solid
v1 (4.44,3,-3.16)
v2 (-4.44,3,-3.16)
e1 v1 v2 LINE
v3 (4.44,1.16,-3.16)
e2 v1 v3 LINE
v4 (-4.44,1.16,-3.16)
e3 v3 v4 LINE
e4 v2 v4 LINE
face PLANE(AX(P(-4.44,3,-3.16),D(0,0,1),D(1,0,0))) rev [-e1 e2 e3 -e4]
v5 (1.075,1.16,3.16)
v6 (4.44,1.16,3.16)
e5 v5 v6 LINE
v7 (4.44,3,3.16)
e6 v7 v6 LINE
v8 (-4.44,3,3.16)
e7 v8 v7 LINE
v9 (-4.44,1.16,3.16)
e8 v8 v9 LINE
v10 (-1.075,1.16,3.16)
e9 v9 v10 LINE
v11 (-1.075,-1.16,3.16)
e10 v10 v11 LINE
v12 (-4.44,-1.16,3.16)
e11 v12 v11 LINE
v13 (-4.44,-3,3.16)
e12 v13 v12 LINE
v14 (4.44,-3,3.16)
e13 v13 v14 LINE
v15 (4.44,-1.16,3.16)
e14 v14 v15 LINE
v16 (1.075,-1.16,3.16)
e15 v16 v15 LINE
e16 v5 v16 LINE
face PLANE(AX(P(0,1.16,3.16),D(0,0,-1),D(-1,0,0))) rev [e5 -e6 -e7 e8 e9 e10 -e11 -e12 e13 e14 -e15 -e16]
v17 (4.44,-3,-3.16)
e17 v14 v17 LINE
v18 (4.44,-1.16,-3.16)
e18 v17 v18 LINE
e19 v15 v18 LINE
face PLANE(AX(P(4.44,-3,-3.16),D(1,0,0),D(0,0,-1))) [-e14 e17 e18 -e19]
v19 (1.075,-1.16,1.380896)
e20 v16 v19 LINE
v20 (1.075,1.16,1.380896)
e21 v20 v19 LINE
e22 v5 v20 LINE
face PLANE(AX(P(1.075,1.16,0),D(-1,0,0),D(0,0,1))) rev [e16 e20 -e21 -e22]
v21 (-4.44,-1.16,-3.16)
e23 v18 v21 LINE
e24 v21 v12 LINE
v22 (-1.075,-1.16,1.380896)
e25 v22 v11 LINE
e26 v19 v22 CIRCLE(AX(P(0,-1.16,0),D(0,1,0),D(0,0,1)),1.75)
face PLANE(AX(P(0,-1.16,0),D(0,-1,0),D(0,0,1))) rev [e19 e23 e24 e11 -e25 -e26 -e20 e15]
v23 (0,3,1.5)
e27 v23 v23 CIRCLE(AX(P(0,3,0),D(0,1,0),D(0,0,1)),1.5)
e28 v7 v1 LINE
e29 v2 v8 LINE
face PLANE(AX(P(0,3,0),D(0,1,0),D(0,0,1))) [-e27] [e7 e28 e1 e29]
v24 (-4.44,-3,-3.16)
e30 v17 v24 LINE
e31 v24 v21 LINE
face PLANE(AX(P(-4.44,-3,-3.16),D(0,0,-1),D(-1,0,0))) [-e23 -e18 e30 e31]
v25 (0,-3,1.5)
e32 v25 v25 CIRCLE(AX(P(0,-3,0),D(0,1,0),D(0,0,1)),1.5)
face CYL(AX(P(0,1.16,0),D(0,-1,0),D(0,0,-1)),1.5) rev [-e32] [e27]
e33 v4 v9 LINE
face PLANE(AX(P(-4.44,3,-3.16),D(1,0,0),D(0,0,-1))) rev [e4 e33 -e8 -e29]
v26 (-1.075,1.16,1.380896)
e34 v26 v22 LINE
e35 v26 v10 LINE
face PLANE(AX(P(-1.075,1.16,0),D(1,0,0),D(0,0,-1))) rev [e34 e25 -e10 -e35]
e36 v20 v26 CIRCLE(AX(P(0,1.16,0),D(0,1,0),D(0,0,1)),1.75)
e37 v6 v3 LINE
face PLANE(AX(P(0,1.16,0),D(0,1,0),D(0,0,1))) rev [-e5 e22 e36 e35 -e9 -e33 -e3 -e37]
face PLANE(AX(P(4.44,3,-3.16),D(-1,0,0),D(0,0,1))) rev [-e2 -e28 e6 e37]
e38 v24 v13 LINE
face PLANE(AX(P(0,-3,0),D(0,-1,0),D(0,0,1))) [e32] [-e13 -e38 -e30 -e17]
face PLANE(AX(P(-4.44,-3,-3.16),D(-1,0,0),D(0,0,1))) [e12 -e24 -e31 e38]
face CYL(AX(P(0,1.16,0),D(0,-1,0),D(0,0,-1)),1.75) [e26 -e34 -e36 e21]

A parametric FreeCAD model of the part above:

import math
import FreeCAD as App
import Part
import Sketcher

doc = App.newDocument("Part")
body = doc.addObject("PartDesign::Body", "Body")

# Sketch on XZ plane
sketch1 = body.newObject("Sketcher::SketchObject", "Sketch")
sketch1.AttachmentSupport = (doc.getObject("XZ_Plane"), [""])
sketch1.MapMode = "FlatFace"
sketch1.addGeometry([
    Part.ArcOfCircle(Part.Circle(App.Vector(0, 0, 0), App.Vector(0, 0, 1), 1.75), math.radians(-90.000015), math.radians(0.000015)),  # 0
    Part.ArcOfCircle(Part.Circle(App.Vector(-0.000001, 0, 0), App.Vector(0, 0, 1), 1.75), math.radians(127.900026), math.radians(270.000016)),  # 1
    Part.LineSegment(App.Vector(-1.075, 1.380896, 0), App.Vector(-1.075, 3.16, 0)),  # 2
    Part.LineSegment(App.Vector(-1.075, 3.16, 0), App.Vector(1.075, 3.16, 0)),  # 3
    Part.LineSegment(App.Vector(1.075, 3.16, 0), App.Vector(1.075, 1.380896, 0)),  # 4
    Part.ArcOfCircle(Part.Circle(App.Vector(0.000002, 0.000001, 0), App.Vector(0, 0, 1), 1.749998), math.radians(-0.000024), math.radians(52.100001)),  # 5
    Part.ArcOfCircle(Part.Circle(App.Vector(-0.000001, 0.000001, 0), App.Vector(0, 0, 1), 1.500001), math.radians(-89.999978), math.radians(-0.000022)),  # 6
    Part.ArcOfCircle(Part.Circle(App.Vector(-0.000001, -0.000001, 0), App.Vector(0, 0, 1), 1.500001), math.radians(0.000022), math.radians(89.999978)),  # 7
    Part.ArcOfCircle(Part.Circle(App.Vector(0, 0, 0), App.Vector(0, 0, 1), 1.5), math.radians(90), math.radians(270)),  # 8
], False)
sketch1.addConstraint([
    Sketcher.Constraint("Tangent", 0, 1, 1, 2),
    Sketcher.Constraint("Coincident", 1, 1, 2, 1),
    Sketcher.Constraint("Coincident", 2, 2, 3, 1),
    Sketcher.Constraint("Coincident", 3, 2, 4, 1),
    Sketcher.Constraint("Coincident", 4, 2, 5, 2),
    Sketcher.Constraint("Tangent", 5, 1, 0, 2),
    Sketcher.Constraint("Tangent", 6, 2, 7, 1),
    Sketcher.Constraint("Tangent", 7, 2, 8, 1),
    Sketcher.Constraint("Tangent", 8, 2, 6, 1),
    Sketcher.Constraint("Vertical", 2),
    Sketcher.Constraint("Horizontal", 3),
    Sketcher.Constraint("Vertical", 4),
    Sketcher.Constraint("Coincident", 0, 3, -1, 1),
    Sketcher.Constraint("Coincident", 6, 3, -1, 1),
    Sketcher.Constraint("Equal", 0, 1),
    Sketcher.Constraint("Equal", 0, 5),
    Sketcher.Constraint("PointOnObject", 0, 1, -2),
    Sketcher.Constraint("PointOnObject", 5, 1, -1),
    Sketcher.Constraint("PointOnObject", 6, 2, -1),
    Sketcher.Constraint("PointOnObject", 7, 2, -2),
    Sketcher.Constraint("PointOnObject", 8, 2, -2),
    Sketcher.Constraint("Horizontal", 1, 1, 4, 2),
    Sketcher.Constraint("Radius", 6, 1.500001),
    Sketcher.Constraint("Radius", 0, 1.75),
    Sketcher.Constraint("DistanceX", 3, 1, 3, 2, 2.15),
    Sketcher.Constraint("DistanceY", -1, 1, 2, 2, 3.16),
])
pad1 = body.newObject("PartDesign::Pad", "Pad")
pad1.Profile = sketch1
pad1.Length = 1.16
pad1.Reversed = True

# Sketch on XZ plane
sketch2 = body.newObject("Sketcher::SketchObject", "Sketch001")
sketch2.AttachmentSupport = (doc.getObject("XZ_Plane"), [""])
sketch2.MapMode = "FlatFace"
sketch2.AttachmentOffset = App.Placement(App.Vector(0, 0, -1.16), App.Rotation())
sketch2.addGeometry([
    Part.LineSegment(App.Vector(-4.44, -3.16, 0), App.Vector(-4.44, 3.16, 0)),  # 0
    Part.LineSegment(App.Vector(-4.44, 3.16, 0), App.Vector(4.44, 3.16, 0)),  # 1
    Part.LineSegment(App.Vector(4.44, 3.16, 0), App.Vector(4.44, -3.16, 0)),  # 2
    Part.LineSegment(App.Vector(4.44, -3.16, 0), App.Vector(-4.44, -3.16, 0)),  # 3
    Part.Circle(App.Vector(0, 0, 0), App.Vector(0, 0, 1), 1.5),  # 4
], False)
sketch2.addConstraint([
    Sketcher.Constraint("Coincident", 0, 2, 1, 1),
    Sketcher.Constraint("Coincident", 1, 2, 2, 1),
    Sketcher.Constraint("Coincident", 2, 2, 3, 1),
    Sketcher.Constraint("Coincident", 3, 2, 0, 1),
    Sketcher.Constraint("Vertical", 0),
    Sketcher.Constraint("Horizontal", 1),
    Sketcher.Constraint("Vertical", 2),
    Sketcher.Constraint("Horizontal", 3),
    Sketcher.Constraint("Coincident", 4, 3, -1, 1),
    Sketcher.Constraint("Symmetric", 0, 2, 2, 2, -1, 1),
    Sketcher.Constraint("Diameter", 4, 3.0),
    Sketcher.Constraint("DistanceX", 1, 1, 1, 2, 8.88),
    Sketcher.Constraint("DistanceY", 0, 1, 0, 2, 6.32),
])
pad2 = body.newObject("PartDesign::Pad", "Pad001")
pad2.Profile = sketch2
pad2.Length = 1.84
pad2.Reversed = True
doc.recompute()

mirrored = body.newObject("PartDesign::Mirrored", "Mirrored")
mirrored.Originals = [pad1, pad2]
mirrored.MirrorPlane = (doc.getObject("XZ_Plane"), [""])
body.Tip = mirrored

doc.recompute()
